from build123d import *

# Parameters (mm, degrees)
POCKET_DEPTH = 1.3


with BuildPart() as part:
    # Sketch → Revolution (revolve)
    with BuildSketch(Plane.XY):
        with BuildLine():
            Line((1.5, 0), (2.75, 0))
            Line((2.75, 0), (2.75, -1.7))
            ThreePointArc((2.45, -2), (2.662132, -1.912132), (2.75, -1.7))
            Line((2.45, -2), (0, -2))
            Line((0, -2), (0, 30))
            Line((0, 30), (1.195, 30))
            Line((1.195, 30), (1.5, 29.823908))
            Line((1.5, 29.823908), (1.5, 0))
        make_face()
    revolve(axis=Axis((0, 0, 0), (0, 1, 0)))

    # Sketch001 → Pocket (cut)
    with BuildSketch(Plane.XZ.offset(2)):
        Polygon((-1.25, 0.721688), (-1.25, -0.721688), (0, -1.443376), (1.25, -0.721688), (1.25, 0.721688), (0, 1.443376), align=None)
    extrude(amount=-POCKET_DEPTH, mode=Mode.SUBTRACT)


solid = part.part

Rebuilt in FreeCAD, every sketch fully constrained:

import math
import FreeCAD as App
import Part
import Sketcher
Q = App.Units.Quantity


def add_polygon(sketch, points):
    """Adds a closed chain of lines whose ends are joined by coincident constraints."""
    first, n = sketch.GeometryCount, len(points)
    for a, b in zip(points, points[1:] + points[:1]):
        sketch.addGeometry(Part.LineSegment(App.Vector(*a, 0), App.Vector(*b, 0)), False)
    for i in range(n):
        sketch.addConstraint(Sketcher.Constraint("Coincident", first + i, 2, first + (i + 1) % n, 1))

doc = App.newDocument("Part")
body = doc.addObject("PartDesign::Body", "Body")

# Sketch on XY plane
sketch1 = body.newObject("Sketcher::SketchObject", "Sketch")
sketch1.AttachmentSupport = (doc.getObject("XY_Plane"), [""])
sketch1.MapMode = "FlatFace"
sketch1.addGeometry([
    Part.LineSegment(App.Vector(2.75, 0, 0), App.Vector(1.5, 0, 0)),  # 0
    Part.LineSegment(App.Vector(1.5, 0, 0), App.Vector(1.5, 29.82, 0)),  # 1
    Part.LineSegment(App.Vector(1.5, 29.82, 0), App.Vector(1.2, 30, 0)),  # 2
    Part.LineSegment(App.Vector(1.2, 30, 0), App.Vector(0, 30, 0)),  # 3
    Part.LineSegment(App.Vector(0, 30, 0), App.Vector(0, -2, 0)),  # 4
    Part.LineSegment(App.Vector(0, -2, 0), App.Vector(2.45, -2, 0)),  # 5
    Part.ArcOfCircle(Part.Circle(App.Vector(2.45, -1.7, 0), App.Vector(0, 0, 1), 0.3), math.radians(-90), math.radians(0)),  # 6
    Part.LineSegment(App.Vector(2.75, -1.7, 0), App.Vector(2.75, 0, 0)),  # 7
], False)
sketch1.addConstraint([
    Sketcher.Constraint("Coincident", 0, 2, 1, 1),
    Sketcher.Constraint("Coincident", 1, 2, 2, 1),
    Sketcher.Constraint("Coincident", 2, 2, 3, 1),
    Sketcher.Constraint("Coincident", 3, 2, 4, 1),
    Sketcher.Constraint("Coincident", 4, 2, 5, 1),
    Sketcher.Constraint("Tangent", 5, 2, 6, 1),
    Sketcher.Constraint("Tangent", 6, 2, 7, 1),
    Sketcher.Constraint("Coincident", 7, 2, 0, 1),
    Sketcher.Constraint("Horizontal", 0),
    Sketcher.Constraint("Vertical", 1),
    Sketcher.Constraint("Horizontal", 3),
    Sketcher.Constraint("Vertical", 4),
    Sketcher.Constraint("Horizontal", 5),
    Sketcher.Constraint("Vertical", 7),
    Sketcher.Constraint("PointOnObject", 0, 2, -1),
    Sketcher.Constraint("PointOnObject", 3, 2, -2),
    Sketcher.Constraint("Radius", 6, 0.3),
    Sketcher.Constraint("DistanceY", 4, 2, 4, 1, 32.0),
    Sketcher.Constraint("DistanceY", 7, 1, 7, 2, 1.7),
    Sketcher.Constraint("DistanceX", 0, 2, 0, 1, 1.25),
    Sketcher.Constraint("DistanceX", 5, 1, 5, 2, 2.45),
    Sketcher.Constraint("DistanceX", 3, 2, 3, 1, 1.195),
    Sketcher.Constraint("DistanceY", 1, 1, 1, 2, 29.823908),
])
revolution = body.newObject("PartDesign::Revolution", "Revolution")
revolution.Profile = sketch1
revolution.ReferenceAxis = (sketch1, ["V_Axis"])
revolution.Angle = 360

# Sketch on XZ plane
sketch2 = body.newObject("Sketcher::SketchObject", "Sketch001")
sketch2.AttachmentSupport = (doc.getObject("XZ_Plane"), [""])
sketch2.MapMode = "FlatFace"
sketch2.AttachmentOffset = App.Placement(App.Vector(0, 0, 2), App.Rotation())
add_polygon(sketch2, [(-1.2, 0.7), (-1.2, -0.7), (0, -1.4), (1.2, -0.7), (1.2, 0.7), (0, 1.4)])  # lines 0-5
sketch2.addConstraint([
    Sketcher.Constraint("Vertical", 0),
    Sketcher.Constraint("Vertical", 3),
    Sketcher.Constraint("Symmetric", 0, 2, 3, 2, -1, 1),
    Sketcher.Constraint("Symmetric", 1, 2, 4, 2, -1, 1),
    Sketcher.Constraint("PointOnObject", 1, 2, -2),
    Sketcher.Constraint("Parallel", 2, 5),
    Sketcher.Constraint("Horizontal", 0, 2, 2, 2),
    Sketcher.Constraint("Angle", 1, Q("-30.000006 deg")),
    Sketcher.Constraint("DistanceX", 0, 2, 2, 2, 2.5),
    Sketcher.Constraint("DistanceY", 0, 2, 0, 1, 1.443376),
])
pocket1 = body.newObject("PartDesign::Pocket", "Pocket")
pocket1.Profile = sketch2
pocket1.Length = 1.3

doc.recompute()
